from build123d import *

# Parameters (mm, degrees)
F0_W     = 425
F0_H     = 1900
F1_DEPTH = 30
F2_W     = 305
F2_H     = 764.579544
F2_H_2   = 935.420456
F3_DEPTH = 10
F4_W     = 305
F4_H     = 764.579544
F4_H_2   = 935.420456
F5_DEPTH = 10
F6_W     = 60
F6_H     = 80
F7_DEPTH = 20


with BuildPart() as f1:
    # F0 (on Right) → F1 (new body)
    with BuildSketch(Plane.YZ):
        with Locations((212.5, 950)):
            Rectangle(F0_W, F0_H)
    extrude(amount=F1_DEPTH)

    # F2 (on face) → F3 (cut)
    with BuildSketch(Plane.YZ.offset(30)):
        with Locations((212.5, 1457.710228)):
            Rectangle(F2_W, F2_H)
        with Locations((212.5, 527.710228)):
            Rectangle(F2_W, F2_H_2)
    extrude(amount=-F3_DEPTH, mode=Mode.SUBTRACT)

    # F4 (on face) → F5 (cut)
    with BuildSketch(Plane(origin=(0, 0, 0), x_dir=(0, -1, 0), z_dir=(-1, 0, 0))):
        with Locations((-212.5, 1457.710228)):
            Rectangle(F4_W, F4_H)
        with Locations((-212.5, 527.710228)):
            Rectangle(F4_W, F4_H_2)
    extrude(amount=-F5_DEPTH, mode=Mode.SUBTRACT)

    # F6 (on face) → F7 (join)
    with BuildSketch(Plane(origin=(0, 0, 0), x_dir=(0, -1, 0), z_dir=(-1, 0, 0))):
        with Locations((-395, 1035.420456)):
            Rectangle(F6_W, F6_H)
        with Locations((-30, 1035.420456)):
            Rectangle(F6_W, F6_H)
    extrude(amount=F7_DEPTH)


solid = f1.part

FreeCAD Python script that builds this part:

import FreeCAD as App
import Part
import Sketcher


def add_polygon(sketch, points):
    """Adds a closed chain of lines whose ends are joined by coincident constraints."""
    first, n = sketch.GeometryCount, len(points)
    for a, b in zip(points, points[1:] + points[:1]):
        sketch.addGeometry(Part.LineSegment(App.Vector(*a, 0), App.Vector(*b, 0)), False)
    for i in range(n):
        sketch.addConstraint(Sketcher.Constraint("Coincident", first + i, 2, first + (i + 1) % n, 1))

doc = App.newDocument("Part")
body = doc.addObject("PartDesign::Body", "Body")

# Sketch on YZ plane
sketch1 = body.newObject("Sketcher::SketchObject", "Sketch")
sketch1.AttachmentSupport = (doc.getObject("YZ_Plane"), [""])
sketch1.MapMode = "FlatFace"
add_polygon(sketch1, [(0, 1900), (0, 0), (425, 0), (425, 1900)])  # lines 0-3
sketch1.addConstraint(Sketcher.Constraint("Vertical", 0))
sketch1.addConstraint(Sketcher.Constraint("Horizontal", 1))
sketch1.addConstraint(Sketcher.Constraint("Vertical", 2))
sketch1.addConstraint(Sketcher.Constraint("Horizontal", 3))
sketch1.addConstraint(Sketcher.Constraint("Coincident", 0, 2, -1, 1))
sketch1.addConstraint(Sketcher.Constraint("DistanceX", 1, 1, 1, 2, 425.0))
sketch1.addConstraint(Sketcher.Constraint("DistanceY", 0, 2, 0, 1, 1900.0))
pad1 = body.newObject("PartDesign::Pad", "Pad")
pad1.Profile = sketch1
pad1.Length = 30

# Sketch on YZ plane
sketch2 = body.newObject("Sketcher::SketchObject", "Sketch001")
sketch2.AttachmentSupport = (doc.getObject("YZ_Plane"), [""])
sketch2.MapMode = "FlatFace"
sketch2.AttachmentOffset = App.Placement(App.Vector(0, 0, 30), App.Rotation())
add_polygon(sketch2, [(60, 1840), (60, 1075), (365, 1075), (365, 1840)])  # lines 0-3
add_polygon(sketch2, [(60, 995), (60, 60), (365, 60), (365, 995)])  # lines 4-7
sketch2.addConstraint(Sketcher.Constraint("Vertical", 0))
sketch2.addConstraint(Sketcher.Constraint("Horizontal", 1))
sketch2.addConstraint(Sketcher.Constraint("Vertical", 2))
sketch2.addConstraint(Sketcher.Constraint("Horizontal", 3))
sketch2.addConstraint(Sketcher.Constraint("Vertical", 4))
sketch2.addConstraint(Sketcher.Constraint("Horizontal", 5))
sketch2.addConstraint(Sketcher.Constraint("Vertical", 6))
sketch2.addConstraint(Sketcher.Constraint("Horizontal", 7))
sketch2.addConstraint(Sketcher.Constraint("Vertical", 3, 2, 4, 2))
sketch2.addConstraint(Sketcher.Constraint("Vertical", 2, 2, 5, 2))
sketch2.addConstraint(Sketcher.Constraint("DistanceX", 1, 1, 1, 2, 305.0))
sketch2.addConstraint(Sketcher.Constraint("DistanceX", -1, 1, 0, 2, 60.0))
sketch2.addConstraint(Sketcher.Constraint("DistanceY", -1, 1, 2, 2, 1840.0))
sketch2.addConstraint(Sketcher.Constraint("DistanceY", -1, 1, 4, 2, 60.0))
sketch2.addConstraint(Sketcher.Constraint("DistanceY", 6, 2, 1, 2, 80.0))
sketch2.addConstraint(Sketcher.Constraint("DistanceY", 0, 2, 0, 1, 764.579544))
pocket1 = body.newObject("PartDesign::Pocket", "Pocket")
pocket1.Profile = sketch2
pocket1.Length = 10

# Sketch on YZ plane
sketch3 = body.newObject("Sketcher::SketchObject", "Sketch002")
sketch3.AttachmentSupport = (doc.getObject("YZ_Plane"), [""])
sketch3.MapMode = "FlatFace"
add_polygon(sketch3, [(365, 1840), (365, 1075), (60, 1075), (60, 1840)])  # lines 0-3
add_polygon(sketch3, [(365, 995), (365, 60), (60, 60), (60, 995)])  # lines 4-7
sketch3.addConstraint(Sketcher.Constraint("Vertical", 0))
sketch3.addConstraint(Sketcher.Constraint("Horizontal", 1))
sketch3.addConstraint(Sketcher.Constraint("Vertical", 2))
sketch3.addConstraint(Sketcher.Constraint("Horizontal", 3))
sketch3.addConstraint(Sketcher.Constraint("Vertical", 4))
sketch3.addConstraint(Sketcher.Constraint("Horizontal", 5))
sketch3.addConstraint(Sketcher.Constraint("Vertical", 6))
sketch3.addConstraint(Sketcher.Constraint("Horizontal", 7))
sketch3.addConstraint(Sketcher.Constraint("Vertical", 3, 2, 4, 2))
sketch3.addConstraint(Sketcher.Constraint("Vertical", 2, 2, 5, 2))
sketch3.addConstraint(Sketcher.Constraint("DistanceX", 1, 2, 1, 1, 305.0))
sketch3.addConstraint(Sketcher.Constraint("DistanceX", -1, 1, 0, 2, 365.0))
sketch3.addConstraint(Sketcher.Constraint("DistanceY", -1, 1, 2, 2, 1840.0))
sketch3.addConstraint(Sketcher.Constraint("DistanceY", -1, 1, 4, 2, 60.0))
sketch3.addConstraint(Sketcher.Constraint("DistanceY", 6, 2, 1, 2, 80.0))
sketch3.addConstraint(Sketcher.Constraint("DistanceY", 0, 2, 0, 1, 764.579544))
pocket2 = body.newObject("PartDesign::Pocket", "Pocket001")
pocket2.Profile = sketch3
pocket2.Length = 10
pocket2.Reversed = True

# Sketch on YZ plane
sketch4 = body.newObject("Sketcher::SketchObject", "Sketch003")
sketch4.AttachmentSupport = (doc.getObject("YZ_Plane"), [""])
sketch4.MapMode = "FlatFace"
add_polygon(sketch4, [(425, 1075), (425, 995), (365, 995), (365, 1075)])  # lines 0-3
add_polygon(sketch4, [(60, 1075), (60, 995), (0, 995), (0, 1075)])  # lines 4-7
sketch4.addConstraint(Sketcher.Constraint("Vertical", 0))
sketch4.addConstraint(Sketcher.Constraint("Horizontal", 1))
sketch4.addConstraint(Sketcher.Constraint("Vertical", 2))
sketch4.addConstraint(Sketcher.Constraint("Horizontal", 3))
sketch4.addConstraint(Sketcher.Constraint("Vertical", 4))
sketch4.addConstraint(Sketcher.Constraint("Horizontal", 5))
sketch4.addConstraint(Sketcher.Constraint("Vertical", 6))
sketch4.addConstraint(Sketcher.Constraint("Horizontal", 7))
sketch4.addConstraint(Sketcher.Constraint("PointOnObject", 5, 2, -2))
sketch4.addConstraint(Sketcher.Constraint("Horizontal", 1, 2, 4, 2))
sketch4.addConstraint(Sketcher.Constraint("Horizontal", 3, 2, 6, 2))
sketch4.addConstraint(Sketcher.Constraint("Equal", 3, 5))
sketch4.addConstraint(Sketcher.Constraint("DistanceX", 1, 2, 1, 1, 60.0))
sketch4.addConstraint(Sketcher.Constraint("DistanceY", 0, 2, 0, 1, 80.0))
sketch4.addConstraint(Sketcher.Constraint("DistanceX", -1, 1, 0, 2, 425.0))
sketch4.addConstraint(Sketcher.Constraint("DistanceY", -1, 1, 0, 2, 995.420456))
pad2 = body.newObject("PartDesign::Pad", "Pad001")
pad2.Profile = sketch4
pad2.Length = 20
pad2.Reversed = True

doc.recompute()
